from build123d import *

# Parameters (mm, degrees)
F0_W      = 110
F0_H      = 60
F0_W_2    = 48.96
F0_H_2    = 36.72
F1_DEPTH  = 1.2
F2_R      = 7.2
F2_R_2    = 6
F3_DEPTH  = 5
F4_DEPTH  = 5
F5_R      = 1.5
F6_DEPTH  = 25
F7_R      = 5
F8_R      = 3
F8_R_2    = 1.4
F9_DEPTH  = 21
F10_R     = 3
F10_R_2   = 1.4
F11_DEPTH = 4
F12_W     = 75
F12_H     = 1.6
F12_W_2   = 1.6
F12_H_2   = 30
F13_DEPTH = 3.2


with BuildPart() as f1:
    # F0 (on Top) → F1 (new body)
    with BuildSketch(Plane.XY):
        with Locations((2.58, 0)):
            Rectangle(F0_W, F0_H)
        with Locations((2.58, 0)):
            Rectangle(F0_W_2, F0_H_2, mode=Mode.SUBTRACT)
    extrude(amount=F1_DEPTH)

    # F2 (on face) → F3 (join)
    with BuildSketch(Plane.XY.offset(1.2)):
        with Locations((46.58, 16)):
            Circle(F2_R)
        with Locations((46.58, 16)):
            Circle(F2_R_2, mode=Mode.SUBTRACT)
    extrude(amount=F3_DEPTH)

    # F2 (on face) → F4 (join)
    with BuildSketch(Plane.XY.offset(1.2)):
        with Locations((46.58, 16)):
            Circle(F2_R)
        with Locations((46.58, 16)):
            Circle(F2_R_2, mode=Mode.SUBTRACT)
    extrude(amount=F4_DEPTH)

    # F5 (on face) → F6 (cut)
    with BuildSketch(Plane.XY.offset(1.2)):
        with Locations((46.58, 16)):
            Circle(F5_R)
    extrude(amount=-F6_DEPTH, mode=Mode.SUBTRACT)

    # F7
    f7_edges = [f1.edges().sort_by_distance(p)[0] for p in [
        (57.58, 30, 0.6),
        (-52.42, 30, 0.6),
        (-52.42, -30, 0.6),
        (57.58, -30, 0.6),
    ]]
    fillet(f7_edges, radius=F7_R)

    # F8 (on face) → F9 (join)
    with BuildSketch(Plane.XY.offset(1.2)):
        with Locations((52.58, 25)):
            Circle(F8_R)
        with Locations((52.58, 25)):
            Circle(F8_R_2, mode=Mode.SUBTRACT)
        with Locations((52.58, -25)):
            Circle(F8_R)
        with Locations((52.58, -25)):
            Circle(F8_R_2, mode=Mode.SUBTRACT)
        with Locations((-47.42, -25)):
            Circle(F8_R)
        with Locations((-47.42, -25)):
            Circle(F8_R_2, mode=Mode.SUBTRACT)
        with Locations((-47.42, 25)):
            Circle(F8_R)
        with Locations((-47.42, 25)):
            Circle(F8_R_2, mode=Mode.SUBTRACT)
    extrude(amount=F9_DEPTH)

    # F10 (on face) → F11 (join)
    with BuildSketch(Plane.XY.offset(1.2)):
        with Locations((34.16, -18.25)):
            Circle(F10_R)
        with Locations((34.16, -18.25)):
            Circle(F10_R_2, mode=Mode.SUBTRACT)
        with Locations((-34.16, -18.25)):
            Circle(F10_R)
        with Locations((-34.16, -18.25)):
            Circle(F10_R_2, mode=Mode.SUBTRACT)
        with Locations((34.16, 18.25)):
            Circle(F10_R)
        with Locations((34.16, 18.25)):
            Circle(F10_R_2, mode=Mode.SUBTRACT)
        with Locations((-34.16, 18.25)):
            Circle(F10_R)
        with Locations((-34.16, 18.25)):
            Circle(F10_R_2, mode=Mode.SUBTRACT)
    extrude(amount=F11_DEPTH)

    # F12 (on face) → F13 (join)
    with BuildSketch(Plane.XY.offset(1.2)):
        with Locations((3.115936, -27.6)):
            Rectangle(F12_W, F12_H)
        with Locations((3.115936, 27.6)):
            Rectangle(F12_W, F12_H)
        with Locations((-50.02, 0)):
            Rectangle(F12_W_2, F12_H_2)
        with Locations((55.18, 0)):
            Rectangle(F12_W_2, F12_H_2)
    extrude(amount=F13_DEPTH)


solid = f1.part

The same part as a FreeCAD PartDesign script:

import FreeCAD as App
import Part
import Sketcher
Q = App.Units.Quantity


def edges_at(feature, points):
    """Names of the edges that pass closest to the given points."""
    edges = feature.Shape.Edges
    near = lambda p: min(range(len(edges)), key=lambda i: edges[i].distToShape(Part.Vertex(*p))[0])
    return sorted({f"Edge{near(p) + 1}" for p in points})

doc = App.newDocument("Part")
body = doc.addObject("PartDesign::Body", "Body")

# Sketch on XY plane
sketch1 = body.newObject("Sketcher::SketchObject", "Sketch")
sketch1.AttachmentSupport = (doc.getObject("XY_Plane"), [""])
sketch1.MapMode = "FlatFace"
sketch1.addGeometry([
    Part.LineSegment(App.Vector(-52, 30, 0), App.Vector(-52, -30, 0)),  # 0
    Part.LineSegment(App.Vector(-52, -30, 0), App.Vector(58, -30, 0)),  # 1
    Part.LineSegment(App.Vector(58, -30, 0), App.Vector(58, 30, 0)),  # 2
    Part.LineSegment(App.Vector(58, 30, 0), App.Vector(-52, 30, 0)),  # 3
    Part.LineSegment(App.Vector(27, -18, 0), App.Vector(-22, -18, 0)),  # 4
    Part.LineSegment(App.Vector(-22, -18, 0), App.Vector(-22, 18, 0)),  # 5
    Part.LineSegment(App.Vector(-22, 18, 0), App.Vector(27, 18, 0)),  # 6
    Part.LineSegment(App.Vector(27, 18, 0), App.Vector(27, -18, 0)),  # 7
], False)
sketch1.addConstraint([
    Sketcher.Constraint("Coincident", 0, 2, 1, 1),
    Sketcher.Constraint("Coincident", 1, 2, 2, 1),
    Sketcher.Constraint("Coincident", 2, 2, 3, 1),
    Sketcher.Constraint("Coincident", 3, 2, 0, 1),
    Sketcher.Constraint("Coincident", 4, 2, 5, 1),
    Sketcher.Constraint("Coincident", 5, 2, 6, 1),
    Sketcher.Constraint("Coincident", 6, 2, 7, 1),
    Sketcher.Constraint("Coincident", 7, 2, 4, 1),
    Sketcher.Constraint("Vertical", 0),
    Sketcher.Constraint("Horizontal", 1),
    Sketcher.Constraint("Vertical", 2),
    Sketcher.Constraint("Horizontal", 3),
    Sketcher.Constraint("Horizontal", 4),
    Sketcher.Constraint("Vertical", 5),
    Sketcher.Constraint("Horizontal", 6),
    Sketcher.Constraint("Vertical", 7),
    Sketcher.Constraint("DistanceX", 1, 1, 1, 2, Q("110 mm")),
    Sketcher.Constraint("DistanceY", 0, 2, 0, 1, Q("60 mm")),
    Sketcher.Constraint("DistanceY", 0, 2, -1, 1, Q("30 mm")),
    Sketcher.Constraint("DistanceX", 4, 2, 4, 1, Q("48.96 mm")),
    Sketcher.Constraint("DistanceY", 5, 1, 5, 2, Q("36.72 mm")),
    Sketcher.Constraint("DistanceX", 4, 2, -1, 1, Q("21.9 mm")),
    Sketcher.Constraint("DistanceX", 0, 2, -1, 1, Q("52.42 mm")),
    Sketcher.Constraint("DistanceY", 4, 2, -1, 1, Q("18.36 mm")),
])
pad1 = body.newObject("PartDesign::Pad", "Pad")
pad1.Profile = sketch1
pad1.Length = 1.2

# Sketch on XY plane
sketch2 = body.newObject("Sketcher::SketchObject", "Sketch001")
sketch2.AttachmentSupport = (doc.getObject("XY_Plane"), [""])
sketch2.MapMode = "FlatFace"
sketch2.AttachmentOffset = App.Placement(App.Vector(0, 0, 1.2), App.Rotation())
sketch2.addGeometry([
    Part.Circle(App.Vector(47, 16, 0), App.Vector(0, 0, 1), 7),
    Part.Circle(App.Vector(47, 16, 0), App.Vector(0, 0, 1), 6),
], False)
sketch2.addConstraint([
    Sketcher.Constraint("Coincident", 1, 3, 0, 3),
    Sketcher.Constraint("Diameter", 1, Q("12 mm")),
    Sketcher.Constraint("Diameter", 0, Q("14.4 mm")),
    Sketcher.Constraint("DistanceY", -1, 1, 0, 3, Q("16 mm")),
    Sketcher.Constraint("DistanceX", -1, 1, 0, 3, Q("46.58 mm")),
])
pad2 = body.newObject("PartDesign::Pad", "Pad001")
pad2.Profile = sketch2
pad2.Length = 5

# Sketch on XY plane
sketch3 = body.newObject("Sketcher::SketchObject", "Sketch002")
sketch3.AttachmentSupport = (doc.getObject("XY_Plane"), [""])
sketch3.MapMode = "FlatFace"
sketch3.AttachmentOffset = App.Placement(App.Vector(0, 0, 1.2), App.Rotation())
sketch3.addGeometry([
    Part.Circle(App.Vector(47, 16, 0), App.Vector(0, 0, 1), 7),
    Part.Circle(App.Vector(47, 16, 0), App.Vector(0, 0, 1), 6),
], False)
sketch3.addConstraint([
    Sketcher.Constraint("Coincident", 1, 3, 0, 3),
    Sketcher.Constraint("Diameter", 1, Q("12 mm")),
    Sketcher.Constraint("Diameter", 0, Q("14.4 mm")),
    Sketcher.Constraint("DistanceY", -1, 1, 0, 3, Q("16 mm")),
    Sketcher.Constraint("DistanceX", -1, 1, 0, 3, Q("46.58 mm")),
])
pad3 = body.newObject("PartDesign::Pad", "Pad002")
pad3.Profile = sketch3
pad3.Length = 5

# Sketch on XY plane
sketch4 = body.newObject("Sketcher::SketchObject", "Sketch003")
sketch4.AttachmentSupport = (doc.getObject("XY_Plane"), [""])
sketch4.MapMode = "FlatFace"
sketch4.AttachmentOffset = App.Placement(App.Vector(0, 0, 1.2), App.Rotation())
sketch4.addGeometry(Part.Circle(App.Vector(46.6, 16, 0), App.Vector(0, 0, 1), 1.5), False)
sketch4.addConstraint([
    Sketcher.Constraint("Diameter", 0, Q("3 mm")),
    Sketcher.Constraint("DistanceY", -1, 1, 0, 3, Q("16 mm")),
    Sketcher.Constraint("DistanceX", -1, 1, 0, 3, Q("46.58 mm")),
])
pocket1 = body.newObject("PartDesign::Pocket", "Pocket")
pocket1.Profile = sketch4
pocket1.Length = 25
doc.recompute()

fillet = body.newObject("PartDesign::Fillet", "Fillet")
fillet.Base = (pocket1, edges_at(pocket1, [
    (57.58, 30, 0.6),
    (-52.42, 30, 0.6),
    (-52.42, -30, 0.6),
    (57.58, -30, 0.6),
]))
fillet.Radius = 5

# Sketch on XY plane
sketch5 = body.newObject("Sketcher::SketchObject", "Sketch004")
sketch5.AttachmentSupport = (doc.getObject("XY_Plane"), [""])
sketch5.MapMode = "FlatFace"
sketch5.AttachmentOffset = App.Placement(App.Vector(0, 0, 1.2), App.Rotation())
sketch5.addGeometry([
    Part.Circle(App.Vector(52.6, 25, 0), App.Vector(0, 0, 1), 3),  # 0
    Part.Circle(App.Vector(52.6, 25, 0), App.Vector(0, 0, 1), 1.4),  # 1
    Part.Circle(App.Vector(52.6, -25, 0), App.Vector(0, 0, 1), 3),  # 2
    Part.Circle(App.Vector(52.6, -25, 0), App.Vector(0, 0, 1), 1.4),  # 3
    Part.Circle(App.Vector(-47.4, -25, 0), App.Vector(0, 0, 1), 3),  # 4
    Part.Circle(App.Vector(-47.4, -25, 0), App.Vector(0, 0, 1), 1.4),  # 5
    Part.Circle(App.Vector(-47.4, 25, 0), App.Vector(0, 0, 1), 3),  # 6
    Part.Circle(App.Vector(-47.4, 25, 0), App.Vector(0, 0, 1), 1.4),  # 7
], False)
sketch5.addConstraint([
    Sketcher.Constraint("Coincident", 1, 3, 0, 3),
    Sketcher.Constraint("Coincident", 3, 3, 2, 3),
    Sketcher.Constraint("Coincident", 5, 3, 4, 3),
    Sketcher.Constraint("Coincident", 7, 3, 6, 3),
    Sketcher.Constraint("Equal", 0, 2),
    Sketcher.Constraint("Equal", 1, 3),
    Sketcher.Constraint("Equal", 2, 4),
    Sketcher.Constraint("Equal", 3, 5),
    Sketcher.Constraint("Equal", 4, 6),
    Sketcher.Constraint("Equal", 5, 7),
    Sketcher.Constraint("Symmetric", 0, 3, 2, 3, -1),
    Sketcher.Constraint("Symmetric", 4, 3, 6, 3, -1),
    Sketcher.Constraint("Horizontal", 3, 3, 4, 3),
    Sketcher.Constraint("Diameter", 0, Q("6 mm")),
    Sketcher.Constraint("Diameter", 1, Q("2.8 mm")),
    Sketcher.Constraint("DistanceY", -1, 1, 0, 3, Q("25 mm")),
    Sketcher.Constraint("DistanceX", 4, 3, 2, 3, Q("100 mm")),
    Sketcher.Constraint("DistanceX", -1, 1, 0, 3, Q("52.58 mm")),
])
pad4 = body.newObject("PartDesign::Pad", "Pad003")
pad4.Profile = sketch5
pad4.Length = 21

# Sketch on XY plane
sketch6 = body.newObject("Sketcher::SketchObject", "Sketch005")
sketch6.AttachmentSupport = (doc.getObject("XY_Plane"), [""])
sketch6.MapMode = "FlatFace"
sketch6.AttachmentOffset = App.Placement(App.Vector(0, 0, 1.2), App.Rotation())
sketch6.addGeometry([
    Part.Circle(App.Vector(34.2, -18.2, 0), App.Vector(0, 0, 1), 3),  # 0
    Part.Circle(App.Vector(34.2, -18.2, 0), App.Vector(0, 0, 1), 1.4),  # 1
    Part.Circle(App.Vector(-34.2, -18.2, 0), App.Vector(0, 0, 1), 3),  # 2
    Part.Circle(App.Vector(-34.2, -18.2, 0), App.Vector(0, 0, 1), 1.4),  # 3
    Part.Circle(App.Vector(34.2, 18.2, 0), App.Vector(0, 0, 1), 3),  # 4
    Part.Circle(App.Vector(34.2, 18.2, 0), App.Vector(0, 0, 1), 1.4),  # 5
    Part.Circle(App.Vector(-34.2, 18.2, 0), App.Vector(0, 0, 1), 3),  # 6
    Part.Circle(App.Vector(-34.2, 18.2, 0), App.Vector(0, 0, 1), 1.4),  # 7
], False)
sketch6.addConstraint([
    Sketcher.Constraint("Coincident", 1, 3, 0, 3),
    Sketcher.Constraint("Coincident", 3, 3, 2, 3),
    Sketcher.Constraint("Coincident", 5, 3, 4, 3),
    Sketcher.Constraint("Coincident", 7, 3, 6, 3),
    Sketcher.Constraint("Equal", 0, 2),
    Sketcher.Constraint("Equal", 1, 3),
    Sketcher.Constraint("Equal", 2, 4),
    Sketcher.Constraint("Equal", 3, 5),
    Sketcher.Constraint("Equal", 4, 6),
    Sketcher.Constraint("Equal", 5, 7),
    Sketcher.Constraint("Symmetric", 2, 3, 4, 3, -1, 1),
    Sketcher.Constraint("Symmetric", 0, 3, 6, 3, -1, 1),
    Sketcher.Constraint("Symmetric", 0, 3, 2, 3, -2),
    Sketcher.Constraint("Diameter", 0, Q("6 mm")),
    Sketcher.Constraint("Diameter", 1, Q("2.8 mm")),
    Sketcher.Constraint("DistanceY", 0, 3, 4, 3, Q("36.5 mm")),
    Sketcher.Constraint("DistanceX", -1, 1, 0, 3, Q("34.16 mm")),
])
pad5 = body.newObject("PartDesign::Pad", "Pad004")
pad5.Profile = sketch6
pad5.Length = 4

# Sketch on XY plane
sketch7 = body.newObject("Sketcher::SketchObject", "Sketch006")
sketch7.AttachmentSupport = (doc.getObject("XY_Plane"), [""])
sketch7.MapMode = "FlatFace"
sketch7.AttachmentOffset = App.Placement(App.Vector(0, 0, 1.2), App.Rotation())
sketch7.addGeometry([
    Part.LineSegment(App.Vector(-34.4, -26.8, 0), App.Vector(-34.4, -28.4, 0)),  # 0
    Part.LineSegment(App.Vector(-34.4, -28.4, 0), App.Vector(40.6, -28.4, 0)),  # 1
    Part.LineSegment(App.Vector(40.6, -28.4, 0), App.Vector(40.6, -26.8, 0)),  # 2
    Part.LineSegment(App.Vector(40.6, -26.8, 0), App.Vector(-34.4, -26.8, 0)),  # 3
    Part.LineSegment(App.Vector(-34.4, 28.4, 0), App.Vector(-34.4, 26.8, 0)),  # 4
    Part.LineSegment(App.Vector(-34.4, 26.8, 0), App.Vector(40.6, 26.8, 0)),  # 5
    Part.LineSegment(App.Vector(40.6, 26.8, 0), App.Vector(40.6, 28.4, 0)),  # 6
    Part.LineSegment(App.Vector(40.6, 28.4, 0), App.Vector(-34.4, 28.4, 0)),  # 7
    Part.LineSegment(App.Vector(-50.8, 15, 0), App.Vector(-50.8, -15, 0)),  # 8
    Part.LineSegment(App.Vector(-50.8, -15, 0), App.Vector(-49.2, -15, 0)),  # 9
    Part.LineSegment(App.Vector(-49.2, -15, 0), App.Vector(-49.2, 15, 0)),  # 10
    Part.LineSegment(App.Vector(-49.2, 15, 0), App.Vector(-50.8, 15, 0)),  # 11
    Part.LineSegment(App.Vector(54.4, 15, 0), App.Vector(54.4, -15, 0)),  # 12
    Part.LineSegment(App.Vector(54.4, -15, 0), App.Vector(56, -15, 0)),  # 13
    Part.LineSegment(App.Vector(56, -15, 0), App.Vector(56, 15, 0)),  # 14
    Part.LineSegment(App.Vector(56, 15, 0), App.Vector(54.4, 15, 0)),  # 15
], False)
sketch7.addConstraint([
    Sketcher.Constraint("Coincident", 0, 2, 1, 1),
    Sketcher.Constraint("Coincident", 1, 2, 2, 1),
    Sketcher.Constraint("Coincident", 2, 2, 3, 1),
    Sketcher.Constraint("Coincident", 3, 2, 0, 1),
    Sketcher.Constraint("Coincident", 4, 2, 5, 1),
    Sketcher.Constraint("Coincident", 5, 2, 6, 1),
    Sketcher.Constraint("Coincident", 6, 2, 7, 1),
    Sketcher.Constraint("Coincident", 7, 2, 4, 1),
    Sketcher.Constraint("Coincident", 8, 2, 9, 1),
    Sketcher.Constraint("Coincident", 9, 2, 10, 1),
    Sketcher.Constraint("Coincident", 10, 2, 11, 1),
    Sketcher.Constraint("Coincident", 11, 2, 8, 1),
    Sketcher.Constraint("Coincident", 12, 2, 13, 1),
    Sketcher.Constraint("Coincident", 13, 2, 14, 1),
    Sketcher.Constraint("Coincident", 14, 2, 15, 1),
    Sketcher.Constraint("Coincident", 15, 2, 12, 1),
    Sketcher.Constraint("Vertical", 0),
    Sketcher.Constraint("Horizontal", 1),
    Sketcher.Constraint("Vertical", 2),
    Sketcher.Constraint("Horizontal", 3),
    Sketcher.Constraint("Vertical", 4),
    Sketcher.Constraint("Horizontal", 5),
    Sketcher.Constraint("Vertical", 6),
    Sketcher.Constraint("Horizontal", 7),
    Sketcher.Constraint("Vertical", 8),
    Sketcher.Constraint("Horizontal", 9),
    Sketcher.Constraint("Vertical", 10),
    Sketcher.Constraint("Horizontal", 11),
    Sketcher.Constraint("Vertical", 12),
    Sketcher.Constraint("Horizontal", 13),
    Sketcher.Constraint("Vertical", 14),
    Sketcher.Constraint("Horizontal", 15),
    Sketcher.Constraint("Symmetric", 3, 2, 4, 2, -1),
    Sketcher.Constraint("Symmetric", 1, 2, 6, 2, -1),
    Sketcher.Constraint("Horizontal", 9, 2, 12, 2),
    Sketcher.Constraint("Horizontal", 11, 2, 14, 2),
    Sketcher.Constraint("Equal", 11, 13),
    Sketcher.Constraint("Equal", 15, 0),
    Sketcher.Constraint("DistanceX", 1, 1, 1, 2, Q("75 mm")),
    Sketcher.Constraint("DistanceY", 8, 2, 8, 1, Q("30 mm")),
    Sketcher.Constraint("DistanceX", 9, 1, 9, 2, Q("1.6 mm")),
    Sketcher.Constraint("DistanceY", 8, 2, -1, 1, Q("15 mm")),
    Sketcher.Constraint("DistanceY", 0, 2, -1, 1, Q("28.4 mm")),
    Sketcher.Constraint("DistanceX", 8, 2, -1, 1, Q("50.82 mm")),
    Sketcher.Constraint("DistanceX", -1, 1, 12, 2, Q("54.38 mm")),
    Sketcher.Constraint("DistanceX", 0, 2, -1, 1, Q("34.384064 mm")),
])
pad6 = body.newObject("PartDesign::Pad", "Pad005")
pad6.Profile = sketch7
pad6.Length = 3.2

doc.recompute()
